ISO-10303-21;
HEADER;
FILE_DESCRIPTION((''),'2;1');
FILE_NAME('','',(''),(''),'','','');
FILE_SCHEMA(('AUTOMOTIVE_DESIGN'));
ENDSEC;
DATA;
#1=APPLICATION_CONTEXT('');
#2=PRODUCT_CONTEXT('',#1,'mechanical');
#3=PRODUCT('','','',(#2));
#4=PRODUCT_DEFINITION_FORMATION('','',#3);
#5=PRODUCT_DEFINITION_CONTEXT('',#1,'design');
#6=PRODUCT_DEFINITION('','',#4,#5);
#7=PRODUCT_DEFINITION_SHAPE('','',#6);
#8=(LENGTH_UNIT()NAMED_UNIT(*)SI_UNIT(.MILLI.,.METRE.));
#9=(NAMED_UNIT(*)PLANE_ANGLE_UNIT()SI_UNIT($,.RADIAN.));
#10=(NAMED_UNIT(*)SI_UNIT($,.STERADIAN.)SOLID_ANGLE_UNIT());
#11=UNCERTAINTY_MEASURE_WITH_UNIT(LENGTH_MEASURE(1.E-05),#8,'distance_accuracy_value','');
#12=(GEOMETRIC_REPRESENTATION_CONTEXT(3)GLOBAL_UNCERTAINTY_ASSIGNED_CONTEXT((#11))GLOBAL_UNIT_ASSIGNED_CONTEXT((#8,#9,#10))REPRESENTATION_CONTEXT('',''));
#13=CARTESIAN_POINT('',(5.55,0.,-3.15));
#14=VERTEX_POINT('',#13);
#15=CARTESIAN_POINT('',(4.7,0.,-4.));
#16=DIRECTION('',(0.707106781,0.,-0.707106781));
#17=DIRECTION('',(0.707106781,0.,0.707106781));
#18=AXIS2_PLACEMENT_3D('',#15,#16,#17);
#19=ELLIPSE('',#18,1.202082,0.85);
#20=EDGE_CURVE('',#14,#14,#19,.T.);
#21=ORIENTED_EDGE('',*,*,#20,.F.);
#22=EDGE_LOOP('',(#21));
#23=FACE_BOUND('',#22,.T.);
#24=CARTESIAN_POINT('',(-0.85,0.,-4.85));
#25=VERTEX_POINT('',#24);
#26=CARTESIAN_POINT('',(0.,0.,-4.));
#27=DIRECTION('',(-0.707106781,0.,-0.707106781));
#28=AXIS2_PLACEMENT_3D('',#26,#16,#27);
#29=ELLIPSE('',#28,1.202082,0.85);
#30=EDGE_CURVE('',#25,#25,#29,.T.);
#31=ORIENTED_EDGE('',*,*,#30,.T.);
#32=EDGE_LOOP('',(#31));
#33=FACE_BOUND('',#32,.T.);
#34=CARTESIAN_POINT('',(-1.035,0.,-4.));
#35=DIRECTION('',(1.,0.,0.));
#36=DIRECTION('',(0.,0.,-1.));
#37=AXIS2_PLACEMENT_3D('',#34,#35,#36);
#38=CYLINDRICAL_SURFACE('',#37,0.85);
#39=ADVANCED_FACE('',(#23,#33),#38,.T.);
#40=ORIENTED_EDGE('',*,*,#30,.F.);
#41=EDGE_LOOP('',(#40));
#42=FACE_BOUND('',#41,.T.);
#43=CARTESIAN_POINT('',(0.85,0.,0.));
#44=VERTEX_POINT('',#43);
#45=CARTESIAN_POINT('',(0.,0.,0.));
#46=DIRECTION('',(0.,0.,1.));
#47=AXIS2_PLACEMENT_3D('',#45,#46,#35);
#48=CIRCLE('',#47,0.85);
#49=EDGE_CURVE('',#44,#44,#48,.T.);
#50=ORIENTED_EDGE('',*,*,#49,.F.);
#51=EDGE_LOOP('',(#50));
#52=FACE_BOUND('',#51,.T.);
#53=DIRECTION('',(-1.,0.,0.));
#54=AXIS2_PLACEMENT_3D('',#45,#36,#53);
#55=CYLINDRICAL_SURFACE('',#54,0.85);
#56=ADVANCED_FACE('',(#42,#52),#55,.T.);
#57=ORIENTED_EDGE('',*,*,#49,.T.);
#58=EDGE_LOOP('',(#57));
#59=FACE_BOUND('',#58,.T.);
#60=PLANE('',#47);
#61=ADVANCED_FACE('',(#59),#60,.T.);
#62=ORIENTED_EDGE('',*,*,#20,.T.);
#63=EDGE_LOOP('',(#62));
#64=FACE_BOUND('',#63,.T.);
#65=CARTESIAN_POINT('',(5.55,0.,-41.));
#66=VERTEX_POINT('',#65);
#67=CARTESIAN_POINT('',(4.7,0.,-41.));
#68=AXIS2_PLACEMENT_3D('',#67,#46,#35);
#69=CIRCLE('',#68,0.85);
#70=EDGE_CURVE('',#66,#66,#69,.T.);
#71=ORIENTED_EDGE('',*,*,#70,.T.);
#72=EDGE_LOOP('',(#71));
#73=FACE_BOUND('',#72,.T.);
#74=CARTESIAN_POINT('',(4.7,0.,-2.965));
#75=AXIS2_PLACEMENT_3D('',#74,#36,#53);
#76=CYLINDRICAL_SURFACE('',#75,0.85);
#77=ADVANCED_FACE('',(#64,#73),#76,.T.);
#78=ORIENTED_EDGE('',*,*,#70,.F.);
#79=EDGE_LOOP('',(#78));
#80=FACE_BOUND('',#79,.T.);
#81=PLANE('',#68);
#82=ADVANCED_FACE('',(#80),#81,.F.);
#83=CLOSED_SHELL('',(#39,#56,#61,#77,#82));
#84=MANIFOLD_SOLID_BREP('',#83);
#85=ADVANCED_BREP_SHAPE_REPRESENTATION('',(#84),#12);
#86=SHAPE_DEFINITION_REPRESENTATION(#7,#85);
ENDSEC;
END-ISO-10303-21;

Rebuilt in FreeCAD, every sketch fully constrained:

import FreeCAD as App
import Part
import Sketcher

V = App.Vector

doc = App.newDocument("Part")
body = doc.addObject("PartDesign::Body", "Body")

# Sketch on XY plane
sketch1 = body.newObject("Sketcher::SketchObject", "Sketch")
sketch1.AttachmentSupport = (doc.getObject("XY_Plane"), [""])
sketch1.MapMode = "FlatFace"
sketch1.addGeometry(Part.Circle(V(0, 0, 0), V(0, 0, 1), 0.8), False)
sketch1.addConstraint(Sketcher.Constraint("Coincident", 0, 3, -1, 1))
sketch1.addConstraint(Sketcher.Constraint("Diameter", 0, 1.7))

# Sketch on XZ plane
sketch2 = body.newObject("Sketcher::SketchObject", "Sketch001")
sketch2.AttachmentSupport = (doc.getObject("XZ_Plane"), [""])
sketch2.MapMode = "FlatFace"
sketch2.addGeometry(Part.LineSegment(V(0, 0, 0), V(0, -4, 0)), False)
sketch2.addGeometry(Part.LineSegment(V(0, -4, 0), V(4.7, -4, 0)), False)
sketch2.addGeometry(Part.LineSegment(V(4.7, -4, 0), V(4.7, -41, 0)), False)
sketch2.addConstraint(Sketcher.Constraint("Coincident", 0, 2, 1, 1))
sketch2.addConstraint(Sketcher.Constraint("Coincident", 1, 2, 2, 1))
sketch2.addConstraint(Sketcher.Constraint("Vertical", 0))
sketch2.addConstraint(Sketcher.Constraint("Horizontal", 1))
sketch2.addConstraint(Sketcher.Constraint("Vertical", 2))
sketch2.addConstraint(Sketcher.Constraint("Coincident", 0, 1, -1, 1))
sketch2.addConstraint(Sketcher.Constraint("DistanceY", 0, 2, 0, 1, 4.0))
sketch2.addConstraint(Sketcher.Constraint("DistanceY", 2, 2, 2, 1, 37.0))
sketch2.addConstraint(Sketcher.Constraint("DistanceX", 1, 1, 1, 2, 4.7))
doc.recompute()

additivepipe = body.newObject("PartDesign::AdditivePipe", "AdditivePipe")
additivepipe.Profile = sketch1
additivepipe.Spine = (sketch2, ["Edge1", "Edge2", "Edge3"])
additivepipe.Transition = "Right corner"

doc.recompute()
